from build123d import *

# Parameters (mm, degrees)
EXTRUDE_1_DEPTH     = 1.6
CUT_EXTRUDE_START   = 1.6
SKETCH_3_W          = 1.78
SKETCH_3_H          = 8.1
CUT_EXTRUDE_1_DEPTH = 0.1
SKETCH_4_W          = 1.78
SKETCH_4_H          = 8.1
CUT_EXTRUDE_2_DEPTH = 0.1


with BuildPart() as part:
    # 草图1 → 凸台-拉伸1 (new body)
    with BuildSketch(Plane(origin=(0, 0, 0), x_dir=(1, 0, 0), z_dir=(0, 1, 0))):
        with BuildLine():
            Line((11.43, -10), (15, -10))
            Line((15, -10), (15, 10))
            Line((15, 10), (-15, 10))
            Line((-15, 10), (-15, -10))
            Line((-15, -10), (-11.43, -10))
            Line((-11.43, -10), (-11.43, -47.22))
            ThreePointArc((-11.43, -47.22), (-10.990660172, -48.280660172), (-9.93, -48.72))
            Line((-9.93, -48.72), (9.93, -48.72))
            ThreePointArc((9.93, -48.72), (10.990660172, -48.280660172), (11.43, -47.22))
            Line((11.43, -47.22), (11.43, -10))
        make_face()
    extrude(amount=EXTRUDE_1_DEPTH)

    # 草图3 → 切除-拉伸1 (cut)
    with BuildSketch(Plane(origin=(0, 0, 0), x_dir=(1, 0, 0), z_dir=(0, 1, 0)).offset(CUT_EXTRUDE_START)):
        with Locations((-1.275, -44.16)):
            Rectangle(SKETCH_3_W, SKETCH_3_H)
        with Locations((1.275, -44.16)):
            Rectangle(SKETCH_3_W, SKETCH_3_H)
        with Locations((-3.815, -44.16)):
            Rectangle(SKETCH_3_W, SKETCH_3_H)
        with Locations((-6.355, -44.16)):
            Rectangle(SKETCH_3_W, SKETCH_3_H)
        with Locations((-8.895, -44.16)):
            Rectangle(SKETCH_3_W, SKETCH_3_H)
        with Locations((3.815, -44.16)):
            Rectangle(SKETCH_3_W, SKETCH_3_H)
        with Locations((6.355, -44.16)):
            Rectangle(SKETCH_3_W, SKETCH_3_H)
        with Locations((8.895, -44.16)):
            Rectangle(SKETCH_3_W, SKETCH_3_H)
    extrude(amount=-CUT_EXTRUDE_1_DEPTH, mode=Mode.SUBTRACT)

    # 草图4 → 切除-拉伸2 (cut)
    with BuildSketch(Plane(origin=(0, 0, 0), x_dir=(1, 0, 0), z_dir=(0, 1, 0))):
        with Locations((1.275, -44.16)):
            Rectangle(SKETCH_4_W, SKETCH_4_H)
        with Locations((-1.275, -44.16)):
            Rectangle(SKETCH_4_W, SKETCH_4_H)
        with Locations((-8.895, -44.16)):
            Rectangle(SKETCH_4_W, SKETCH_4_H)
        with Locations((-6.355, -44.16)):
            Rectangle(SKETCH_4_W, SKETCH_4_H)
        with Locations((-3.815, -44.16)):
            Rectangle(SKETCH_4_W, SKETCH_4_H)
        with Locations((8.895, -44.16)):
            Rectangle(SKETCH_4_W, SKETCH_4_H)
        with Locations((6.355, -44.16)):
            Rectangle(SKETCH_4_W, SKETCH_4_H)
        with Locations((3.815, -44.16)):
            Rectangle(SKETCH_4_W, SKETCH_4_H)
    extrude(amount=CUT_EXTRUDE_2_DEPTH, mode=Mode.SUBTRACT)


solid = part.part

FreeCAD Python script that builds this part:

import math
import FreeCAD as App
import Part
import Sketcher

doc = App.newDocument("Part")
body = doc.addObject("PartDesign::Body", "Body")

# Sketch on XZ plane
sketch1 = doc.addObject("Sketcher::SketchObject", "Sketch")
body.addObject(sketch1)
sketch1.AttachmentSupport = (doc.XZ_Plane, [""])
sketch1.MapMode = "FlatFace"
sketch1.addGeometry([
    Part.LineSegment(App.Vector(11.4, 10, 0), App.Vector(15, 10, 0)),  # 0
    Part.LineSegment(App.Vector(15, 10, 0), App.Vector(15, -10, 0)),  # 1
    Part.LineSegment(App.Vector(15, -10, 0), App.Vector(-15, -10, 0)),  # 2
    Part.LineSegment(App.Vector(-15, -10, 0), App.Vector(-15, 10, 0)),  # 3
    Part.LineSegment(App.Vector(-15, 10, 0), App.Vector(-11.4, 10, 0)),  # 4
    Part.LineSegment(App.Vector(-11.4, 10, 0), App.Vector(-11.4, 47.2, 0)),  # 5
    Part.ArcOfCircle(Part.Circle(App.Vector(-9.9, 47.2, 0), App.Vector(0, 0, 1), 1.5), math.radians(90), math.radians(180)),  # 6
    Part.LineSegment(App.Vector(-9.9, 48.7, 0), App.Vector(9.9, 48.7, 0)),  # 7
    Part.ArcOfCircle(Part.Circle(App.Vector(9.9, 47.2, 0), App.Vector(0, 0, 1), 1.5), math.radians(0), math.radians(90)),  # 8
    Part.LineSegment(App.Vector(11.4, 47.2, 0), App.Vector(11.4, 10, 0)),  # 9
], False)
sketch1.addConstraint([
    Sketcher.Constraint("Coincident", 0, 2, 1, 1),
    Sketcher.Constraint("Coincident", 1, 2, 2, 1),
    Sketcher.Constraint("Coincident", 2, 2, 3, 1),
    Sketcher.Constraint("Coincident", 3, 2, 4, 1),
    Sketcher.Constraint("Coincident", 4, 2, 5, 1),
    Sketcher.Constraint("Tangent", 5, 2, 6, 2),
    Sketcher.Constraint("Tangent", 6, 1, 7, 1),
    Sketcher.Constraint("Tangent", 7, 2, 8, 2),
    Sketcher.Constraint("Tangent", 8, 1, 9, 1),
    Sketcher.Constraint("Coincident", 9, 2, 0, 1),
    Sketcher.Constraint("Horizontal", 0),
    Sketcher.Constraint("Vertical", 1),
    Sketcher.Constraint("Horizontal", 2),
    Sketcher.Constraint("Vertical", 3),
    Sketcher.Constraint("Horizontal", 4),
    Sketcher.Constraint("Vertical", 5),
    Sketcher.Constraint("Horizontal", 7),
    Sketcher.Constraint("Vertical", 9),
    Sketcher.Constraint("Equal", 6, 8),
    Sketcher.Constraint("Symmetric", 0, 2, 2, 2, -1, 1),
    Sketcher.Constraint("Symmetric", 4, 2, 9, 2, -2),
    Sketcher.Constraint("Radius", 6, 1.5),
    Sketcher.Constraint("DistanceX", 2, 2, 2, 1, 30.0),
    Sketcher.Constraint("DistanceY", 1, 2, 1, 1, 20.0),
    Sketcher.Constraint("DistanceX", 0, 1, 0, 2, 3.57),
    Sketcher.Constraint("DistanceY", 5, 1, 5, 2, 37.22),
])
pad1 = doc.addObject("PartDesign::Pad", "Pad")
body.addObject(pad1)
pad1.Profile = sketch1
pad1.Length = 1.6
pad1.Reversed = True

# Sketch on XZ plane
sketch2 = doc.addObject("Sketcher::SketchObject", "Sketch001")
body.addObject(sketch2)
sketch2.AttachmentSupport = (doc.XZ_Plane, [""])
sketch2.MapMode = "FlatFace"
sketch2.AttachmentOffset = App.Placement(App.Vector(0, 0, -1.6), App.Rotation())
sketch2.addGeometry([
    Part.LineSegment(App.Vector(-2.2, 40.1, 0), App.Vector(-2.2, 48.2, 0)),  # 0
    Part.LineSegment(App.Vector(-2.2, 48.2, 0), App.Vector(-0.4, 48.2, 0)),  # 1
    Part.LineSegment(App.Vector(-0.4, 48.2, 0), App.Vector(-0.4, 40.1, 0)),  # 2
    Part.LineSegment(App.Vector(-0.4, 40.1, 0), App.Vector(-2.2, 40.1, 0)),  # 3
    Part.LineSegment(App.Vector(0.4, 40.1, 0), App.Vector(0.4, 48.2, 0)),  # 4
    Part.LineSegment(App.Vector(0.4, 48.2, 0), App.Vector(2.2, 48.2, 0)),  # 5
    Part.LineSegment(App.Vector(2.2, 48.2, 0), App.Vector(2.2, 40.1, 0)),  # 6
    Part.LineSegment(App.Vector(2.2, 40.1, 0), App.Vector(0.4, 40.1, 0)),  # 7
    Part.LineSegment(App.Vector(-4.7, 40.1, 0), App.Vector(-4.7, 48.2, 0)),  # 8
    Part.LineSegment(App.Vector(-4.7, 48.2, 0), App.Vector(-2.9, 48.2, 0)),  # 9
    Part.LineSegment(App.Vector(-2.9, 48.2, 0), App.Vector(-2.9, 40.1, 0)),  # 10
    Part.LineSegment(App.Vector(-2.9, 40.1, 0), App.Vector(-4.7, 40.1, 0)),  # 11
    Part.LineSegment(App.Vector(-7.2, 40.1, 0), App.Vector(-7.2, 48.2, 0)),  # 12
    Part.LineSegment(App.Vector(-7.2, 48.2, 0), App.Vector(-5.5, 48.2, 0)),  # 13
    Part.LineSegment(App.Vector(-5.5, 48.2, 0), App.Vector(-5.5, 40.1, 0)),  # 14
    Part.LineSegment(App.Vector(-5.5, 40.1, 0), App.Vector(-7.2, 40.1, 0)),  # 15
    Part.LineSegment(App.Vector(-9.8, 40.1, 0), App.Vector(-9.8, 48.2, 0)),  # 16
    Part.LineSegment(App.Vector(-9.8, 48.2, 0), App.Vector(-8, 48.2, 0)),  # 17
    Part.LineSegment(App.Vector(-8, 48.2, 0), App.Vector(-8, 40.1, 0)),  # 18
    Part.LineSegment(App.Vector(-8, 40.1, 0), App.Vector(-9.8, 40.1, 0)),  # 19
    Part.LineSegment(App.Vector(2.9, 40.1, 0), App.Vector(2.9, 48.2, 0)),  # 20
    Part.LineSegment(App.Vector(2.9, 48.2, 0), App.Vector(4.7, 48.2, 0)),  # 21
    Part.LineSegment(App.Vector(4.7, 48.2, 0), App.Vector(4.7, 40.1, 0)),  # 22
    Part.LineSegment(App.Vector(4.7, 40.1, 0), App.Vector(2.9, 40.1, 0)),  # 23
    Part.LineSegment(App.Vector(5.5, 40.1, 0), App.Vector(5.5, 48.2, 0)),  # 24
    Part.LineSegment(App.Vector(5.5, 48.2, 0), App.Vector(7.2, 48.2, 0)),  # 25
    Part.LineSegment(App.Vector(7.2, 48.2, 0), App.Vector(7.2, 40.1, 0)),  # 26
    Part.LineSegment(App.Vector(7.2, 40.1, 0), App.Vector(5.5, 40.1, 0)),  # 27
    Part.LineSegment(App.Vector(8, 40.1, 0), App.Vector(8, 48.2, 0)),  # 28
    Part.LineSegment(App.Vector(8, 48.2, 0), App.Vector(9.8, 48.2, 0)),  # 29
    Part.LineSegment(App.Vector(9.8, 48.2, 0), App.Vector(9.8, 40.1, 0)),  # 30
    Part.LineSegment(App.Vector(9.8, 40.1, 0), App.Vector(8, 40.1, 0)),  # 31
], False)
sketch2.addConstraint([
    Sketcher.Constraint("Coincident", 0, 2, 1, 1),
    Sketcher.Constraint("Coincident", 1, 2, 2, 1),
    Sketcher.Constraint("Coincident", 2, 2, 3, 1),
    Sketcher.Constraint("Coincident", 3, 2, 0, 1),
    Sketcher.Constraint("Coincident", 4, 2, 5, 1),
    Sketcher.Constraint("Coincident", 5, 2, 6, 1),
    Sketcher.Constraint("Coincident", 6, 2, 7, 1),
    Sketcher.Constraint("Coincident", 7, 2, 4, 1),
    Sketcher.Constraint("Coincident", 8, 2, 9, 1),
    Sketcher.Constraint("Coincident", 9, 2, 10, 1),
    Sketcher.Constraint("Coincident", 10, 2, 11, 1),
    Sketcher.Constraint("Coincident", 11, 2, 8, 1),
    Sketcher.Constraint("Coincident", 12, 2, 13, 1),
    Sketcher.Constraint("Coincident", 13, 2, 14, 1),
    Sketcher.Constraint("Coincident", 14, 2, 15, 1),
    Sketcher.Constraint("Coincident", 15, 2, 12, 1),
    Sketcher.Constraint("Coincident", 16, 2, 17, 1),
    Sketcher.Constraint("Coincident", 17, 2, 18, 1),
    Sketcher.Constraint("Coincident", 18, 2, 19, 1),
    Sketcher.Constraint("Coincident", 19, 2, 16, 1),
    Sketcher.Constraint("Coincident", 20, 2, 21, 1),
    Sketcher.Constraint("Coincident", 21, 2, 22, 1),
    Sketcher.Constraint("Coincident", 22, 2, 23, 1),
    Sketcher.Constraint("Coincident", 23, 2, 20, 1),
    Sketcher.Constraint("Coincident", 24, 2, 25, 1),
    Sketcher.Constraint("Coincident", 25, 2, 26, 1),
    Sketcher.Constraint("Coincident", 26, 2, 27, 1),
    Sketcher.Constraint("Coincident", 27, 2, 24, 1),
    Sketcher.Constraint("Coincident", 28, 2, 29, 1),
    Sketcher.Constraint("Coincident", 29, 2, 30, 1),
    Sketcher.Constraint("Coincident", 30, 2, 31, 1),
    Sketcher.Constraint("Coincident", 31, 2, 28, 1),
    Sketcher.Constraint("Vertical", 0),
    Sketcher.Constraint("Horizontal", 1),
    Sketcher.Constraint("Vertical", 2),
    Sketcher.Constraint("Horizontal", 3),
    Sketcher.Constraint("Vertical", 4),
    Sketcher.Constraint("Horizontal", 5),
    Sketcher.Constraint("Vertical", 6),
    Sketcher.Constraint("Horizontal", 7),
    Sketcher.Constraint("Vertical", 8),
    Sketcher.Constraint("Horizontal", 9),
    Sketcher.Constraint("Vertical", 10),
    Sketcher.Constraint("Horizontal", 11),
    Sketcher.Constraint("Vertical", 12),
    Sketcher.Constraint("Horizontal", 13),
    Sketcher.Constraint("Vertical", 14),
    Sketcher.Constraint("Horizontal", 15),
    Sketcher.Constraint("Vertical", 16),
    Sketcher.Constraint("Horizontal", 17),
    Sketcher.Constraint("Vertical", 18),
    Sketcher.Constraint("Horizontal", 19),
    Sketcher.Constraint("Vertical", 20),
    Sketcher.Constraint("Horizontal", 21),
    Sketcher.Constraint("Vertical", 22),
    Sketcher.Constraint("Horizontal", 23),
    Sketcher.Constraint("Vertical", 24),
    Sketcher.Constraint("Horizontal", 25),
    Sketcher.Constraint("Vertical", 26),
    Sketcher.Constraint("Horizontal", 27),
    Sketcher.Constraint("Vertical", 28),
    Sketcher.Constraint("Horizontal", 29),
    Sketcher.Constraint("Vertical", 30),
    Sketcher.Constraint("Horizontal", 31),
    Sketcher.Constraint("Symmetric", 1, 2, 4, 2, -2),
    Sketcher.Constraint("Symmetric", 3, 2, 6, 2, -2),
    Sketcher.Constraint("Symmetric", 9, 2, 20, 2, -2),
    Sketcher.Constraint("Symmetric", 11, 2, 22, 2, -2),
    Sketcher.Constraint("Symmetric", 13, 2, 24, 2, -2),
    Sketcher.Constraint("Symmetric", 15, 2, 26, 2, -2),
    Sketcher.Constraint("Symmetric", 17, 2, 28, 2, -2),
    Sketcher.Constraint("Symmetric", 19, 2, 30, 2, -2),
    Sketcher.Constraint("Horizontal", 5, 2, 8, 2),
    Sketcher.Constraint("Horizontal", 7, 2, 10, 2),
    Sketcher.Constraint("Horizontal", 9, 2, 12, 2),
    Sketcher.Constraint("Horizontal", 11, 2, 14, 2),
    Sketcher.Constraint("Horizontal", 13, 2, 16, 2),
    Sketcher.Constraint("Horizontal", 15, 2, 18, 2),
    Sketcher.Constraint("Equal", 7, 9),
    Sketcher.Constraint("Equal", 11, 13),
    Sketcher.Constraint("Equal", 15, 17),
    Sketcher.Constraint("DistanceY", 0, 1, 0, 2, 8.1),
    Sketcher.Constraint("DistanceX", 1, 1, 1, 2, 1.78),
    Sketcher.Constraint("DistanceX", 13, 2, 0, 2, 3.3),
    Sketcher.Constraint("DistanceX", 17, 2, 8, 2, 3.3),
    Sketcher.Constraint("DistanceY", -1, 1, 0, 2, 48.21),
    Sketcher.Constraint("DistanceX", 1, 2, 4, 2, 0.77),
    Sketcher.Constraint("DistanceX", 8, 2, 0, 2, 2.54),
])
pocket1 = doc.addObject("PartDesign::Pocket", "Pocket")
body.addObject(pocket1)
pocket1.Profile = sketch2
pocket1.Length = 0.1
pocket1.Reversed = True

# Sketch on XZ plane
sketch3 = doc.addObject("Sketcher::SketchObject", "Sketch002")
body.addObject(sketch3)
sketch3.AttachmentSupport = (doc.XZ_Plane, [""])
sketch3.MapMode = "FlatFace"
sketch3.addGeometry([
    Part.LineSegment(App.Vector(0.4, 40.1, 0), App.Vector(0.4, 48.2, 0)),  # 0
    Part.LineSegment(App.Vector(0.4, 48.2, 0), App.Vector(2.2, 48.2, 0)),  # 1
    Part.LineSegment(App.Vector(2.2, 48.2, 0), App.Vector(2.2, 40.1, 0)),  # 2
    Part.LineSegment(App.Vector(2.2, 40.1, 0), App.Vector(0.4, 40.1, 0)),  # 3
    Part.LineSegment(App.Vector(-2.2, 40.1, 0), App.Vector(-2.2, 48.2, 0)),  # 4
    Part.LineSegment(App.Vector(-2.2, 48.2, 0), App.Vector(-0.4, 48.2, 0)),  # 5
    Part.LineSegment(App.Vector(-0.4, 48.2, 0), App.Vector(-0.4, 40.1, 0)),  # 6
    Part.LineSegment(App.Vector(-0.4, 40.1, 0), App.Vector(-2.2, 40.1, 0)),  # 7
    Part.LineSegment(App.Vector(-9.8, 40.1, 0), App.Vector(-9.8, 48.2, 0)),  # 8
    Part.LineSegment(App.Vector(-9.8, 48.2, 0), App.Vector(-8, 48.2, 0)),  # 9
    Part.LineSegment(App.Vector(-8, 48.2, 0), App.Vector(-8, 40.1, 0)),  # 10
    Part.LineSegment(App.Vector(-8, 40.1, 0), App.Vector(-9.8, 40.1, 0)),  # 11
    Part.LineSegment(App.Vector(-7.2, 40.1, 0), App.Vector(-7.2, 48.2, 0)),  # 12
    Part.LineSegment(App.Vector(-7.2, 48.2, 0), App.Vector(-5.5, 48.2, 0)),  # 13
    Part.LineSegment(App.Vector(-5.5, 48.2, 0), App.Vector(-5.5, 40.1, 0)),  # 14
    Part.LineSegment(App.Vector(-5.5, 40.1, 0), App.Vector(-7.2, 40.1, 0)),  # 15
    Part.LineSegment(App.Vector(-4.7, 40.1, 0), App.Vector(-4.7, 48.2, 0)),  # 16
    Part.LineSegment(App.Vector(-4.7, 48.2, 0), App.Vector(-2.9, 48.2, 0)),  # 17
    Part.LineSegment(App.Vector(-2.9, 48.2, 0), App.Vector(-2.9, 40.1, 0)),  # 18
    Part.LineSegment(App.Vector(-2.9, 40.1, 0), App.Vector(-4.7, 40.1, 0)),  # 19
    Part.LineSegment(App.Vector(8, 40.1, 0), App.Vector(8, 48.2, 0)),  # 20
    Part.LineSegment(App.Vector(8, 48.2, 0), App.Vector(9.8, 48.2, 0)),  # 21
    Part.LineSegment(App.Vector(9.8, 48.2, 0), App.Vector(9.8, 40.1, 0)),  # 22
    Part.LineSegment(App.Vector(9.8, 40.1, 0), App.Vector(8, 40.1, 0)),  # 23
    Part.LineSegment(App.Vector(5.5, 40.1, 0), App.Vector(5.5, 48.2, 0)),  # 24
    Part.LineSegment(App.Vector(5.5, 48.2, 0), App.Vector(7.2, 48.2, 0)),  # 25
    Part.LineSegment(App.Vector(7.2, 48.2, 0), App.Vector(7.2, 40.1, 0)),  # 26
    Part.LineSegment(App.Vector(7.2, 40.1, 0), App.Vector(5.5, 40.1, 0)),  # 27
    Part.LineSegment(App.Vector(2.9, 40.1, 0), App.Vector(2.9, 48.2, 0)),  # 28
    Part.LineSegment(App.Vector(2.9, 48.2, 0), App.Vector(4.7, 48.2, 0)),  # 29
    Part.LineSegment(App.Vector(4.7, 48.2, 0), App.Vector(4.7, 40.1, 0)),  # 30
    Part.LineSegment(App.Vector(4.7, 40.1, 0), App.Vector(2.9, 40.1, 0)),  # 31
], False)
sketch3.addConstraint([
    Sketcher.Constraint("Coincident", 0, 2, 1, 1),
    Sketcher.Constraint("Coincident", 1, 2, 2, 1),
    Sketcher.Constraint("Coincident", 2, 2, 3, 1),
    Sketcher.Constraint("Coincident", 3, 2, 0, 1),
    Sketcher.Constraint("Coincident", 4, 2, 5, 1),
    Sketcher.Constraint("Coincident", 5, 2, 6, 1),
    Sketcher.Constraint("Coincident", 6, 2, 7, 1),
    Sketcher.Constraint("Coincident", 7, 2, 4, 1),
    Sketcher.Constraint("Coincident", 8, 2, 9, 1),
    Sketcher.Constraint("Coincident", 9, 2, 10, 1),
    Sketcher.Constraint("Coincident", 10, 2, 11, 1),
    Sketcher.Constraint("Coincident", 11, 2, 8, 1),
    Sketcher.Constraint("Coincident", 12, 2, 13, 1),
    Sketcher.Constraint("Coincident", 13, 2, 14, 1),
    Sketcher.Constraint("Coincident", 14, 2, 15, 1),
    Sketcher.Constraint("Coincident", 15, 2, 12, 1),
    Sketcher.Constraint("Coincident", 16, 2, 17, 1),
    Sketcher.Constraint("Coincident", 17, 2, 18, 1),
    Sketcher.Constraint("Coincident", 18, 2, 19, 1),
    Sketcher.Constraint("Coincident", 19, 2, 16, 1),
    Sketcher.Constraint("Coincident", 20, 2, 21, 1),
    Sketcher.Constraint("Coincident", 21, 2, 22, 1),
    Sketcher.Constraint("Coincident", 22, 2, 23, 1),
    Sketcher.Constraint("Coincident", 23, 2, 20, 1),
    Sketcher.Constraint("Coincident", 24, 2, 25, 1),
    Sketcher.Constraint("Coincident", 25, 2, 26, 1),
    Sketcher.Constraint("Coincident", 26, 2, 27, 1),
    Sketcher.Constraint("Coincident", 27, 2, 24, 1),
    Sketcher.Constraint("Coincident", 28, 2, 29, 1),
    Sketcher.Constraint("Coincident", 29, 2, 30, 1),
    Sketcher.Constraint("Coincident", 30, 2, 31, 1),
    Sketcher.Constraint("Coincident", 31, 2, 28, 1),
    Sketcher.Constraint("Vertical", 0),
    Sketcher.Constraint("Horizontal", 1),
    Sketcher.Constraint("Vertical", 2),
    Sketcher.Constraint("Horizontal", 3),
    Sketcher.Constraint("Vertical", 4),
    Sketcher.Constraint("Horizontal", 5),
    Sketcher.Constraint("Vertical", 6),
    Sketcher.Constraint("Horizontal", 7),
    Sketcher.Constraint("Vertical", 8),
    Sketcher.Constraint("Horizontal", 9),
    Sketcher.Constraint("Vertical", 10),
    Sketcher.Constraint("Horizontal", 11),
    Sketcher.Constraint("Vertical", 12),
    Sketcher.Constraint("Horizontal", 13),
    Sketcher.Constraint("Vertical", 14),
    Sketcher.Constraint("Horizontal", 15),
    Sketcher.Constraint("Vertical", 16),
    Sketcher.Constraint("Horizontal", 17),
    Sketcher.Constraint("Vertical", 18),
    Sketcher.Constraint("Horizontal", 19),
    Sketcher.Constraint("Vertical", 20),
    Sketcher.Constraint("Horizontal", 21),
    Sketcher.Constraint("Vertical", 22),
    Sketcher.Constraint("Horizontal", 23),
    Sketcher.Constraint("Vertical", 24),
    Sketcher.Constraint("Horizontal", 25),
    Sketcher.Constraint("Vertical", 26),
    Sketcher.Constraint("Horizontal", 27),
    Sketcher.Constraint("Vertical", 28),
    Sketcher.Constraint("Horizontal", 29),
    Sketcher.Constraint("Vertical", 30),
    Sketcher.Constraint("Horizontal", 31),
    Sketcher.Constraint("Symmetric", 1, 2, 4, 2, -2),
    Sketcher.Constraint("Symmetric", 3, 2, 6, 2, -2),
    Sketcher.Constraint("Symmetric", 9, 2, 20, 2, -2),
    Sketcher.Constraint("Symmetric", 11, 2, 22, 2, -2),
    Sketcher.Constraint("Symmetric", 13, 2, 24, 2, -2),
    Sketcher.Constraint("Symmetric", 15, 2, 26, 2, -2),
    Sketcher.Constraint("Symmetric", 17, 2, 28, 2, -2),
    Sketcher.Constraint("Symmetric", 19, 2, 30, 2, -2),
    Sketcher.Constraint("Horizontal", 5, 2, 8, 2),
    Sketcher.Constraint("Horizontal", 7, 2, 10, 2),
    Sketcher.Constraint("Horizontal", 9, 2, 12, 2),
    Sketcher.Constraint("Horizontal", 11, 2, 14, 2),
    Sketcher.Constraint("Horizontal", 13, 2, 16, 2),
    Sketcher.Constraint("Horizontal", 15, 2, 18, 2),
    Sketcher.Constraint("Equal", 7, 9),
    Sketcher.Constraint("Equal", 11, 13),
    Sketcher.Constraint("Equal", 15, 17),
    Sketcher.Constraint("DistanceY", 0, 1, 0, 2, 8.1),
    Sketcher.Constraint("DistanceX", 1, 1, 1, 2, 1.78),
    Sketcher.Constraint("DistanceX", 8, 2, 5, 2, 9.4),
    Sketcher.Constraint("DistanceX", 13, 2, 4, 2, 3.3),
    Sketcher.Constraint("DistanceX", 9, 2, 16, 2, 3.3),
    Sketcher.Constraint("DistanceY", -1, 1, 0, 2, 48.21),
    Sketcher.Constraint("DistanceX", 4, 2, 0, 2, 2.55),
])
pocket2 = doc.addObject("PartDesign::Pocket", "Pocket001")
body.addObject(pocket2)
pocket2.Profile = sketch3
pocket2.Length = 0.1

doc.recompute()
